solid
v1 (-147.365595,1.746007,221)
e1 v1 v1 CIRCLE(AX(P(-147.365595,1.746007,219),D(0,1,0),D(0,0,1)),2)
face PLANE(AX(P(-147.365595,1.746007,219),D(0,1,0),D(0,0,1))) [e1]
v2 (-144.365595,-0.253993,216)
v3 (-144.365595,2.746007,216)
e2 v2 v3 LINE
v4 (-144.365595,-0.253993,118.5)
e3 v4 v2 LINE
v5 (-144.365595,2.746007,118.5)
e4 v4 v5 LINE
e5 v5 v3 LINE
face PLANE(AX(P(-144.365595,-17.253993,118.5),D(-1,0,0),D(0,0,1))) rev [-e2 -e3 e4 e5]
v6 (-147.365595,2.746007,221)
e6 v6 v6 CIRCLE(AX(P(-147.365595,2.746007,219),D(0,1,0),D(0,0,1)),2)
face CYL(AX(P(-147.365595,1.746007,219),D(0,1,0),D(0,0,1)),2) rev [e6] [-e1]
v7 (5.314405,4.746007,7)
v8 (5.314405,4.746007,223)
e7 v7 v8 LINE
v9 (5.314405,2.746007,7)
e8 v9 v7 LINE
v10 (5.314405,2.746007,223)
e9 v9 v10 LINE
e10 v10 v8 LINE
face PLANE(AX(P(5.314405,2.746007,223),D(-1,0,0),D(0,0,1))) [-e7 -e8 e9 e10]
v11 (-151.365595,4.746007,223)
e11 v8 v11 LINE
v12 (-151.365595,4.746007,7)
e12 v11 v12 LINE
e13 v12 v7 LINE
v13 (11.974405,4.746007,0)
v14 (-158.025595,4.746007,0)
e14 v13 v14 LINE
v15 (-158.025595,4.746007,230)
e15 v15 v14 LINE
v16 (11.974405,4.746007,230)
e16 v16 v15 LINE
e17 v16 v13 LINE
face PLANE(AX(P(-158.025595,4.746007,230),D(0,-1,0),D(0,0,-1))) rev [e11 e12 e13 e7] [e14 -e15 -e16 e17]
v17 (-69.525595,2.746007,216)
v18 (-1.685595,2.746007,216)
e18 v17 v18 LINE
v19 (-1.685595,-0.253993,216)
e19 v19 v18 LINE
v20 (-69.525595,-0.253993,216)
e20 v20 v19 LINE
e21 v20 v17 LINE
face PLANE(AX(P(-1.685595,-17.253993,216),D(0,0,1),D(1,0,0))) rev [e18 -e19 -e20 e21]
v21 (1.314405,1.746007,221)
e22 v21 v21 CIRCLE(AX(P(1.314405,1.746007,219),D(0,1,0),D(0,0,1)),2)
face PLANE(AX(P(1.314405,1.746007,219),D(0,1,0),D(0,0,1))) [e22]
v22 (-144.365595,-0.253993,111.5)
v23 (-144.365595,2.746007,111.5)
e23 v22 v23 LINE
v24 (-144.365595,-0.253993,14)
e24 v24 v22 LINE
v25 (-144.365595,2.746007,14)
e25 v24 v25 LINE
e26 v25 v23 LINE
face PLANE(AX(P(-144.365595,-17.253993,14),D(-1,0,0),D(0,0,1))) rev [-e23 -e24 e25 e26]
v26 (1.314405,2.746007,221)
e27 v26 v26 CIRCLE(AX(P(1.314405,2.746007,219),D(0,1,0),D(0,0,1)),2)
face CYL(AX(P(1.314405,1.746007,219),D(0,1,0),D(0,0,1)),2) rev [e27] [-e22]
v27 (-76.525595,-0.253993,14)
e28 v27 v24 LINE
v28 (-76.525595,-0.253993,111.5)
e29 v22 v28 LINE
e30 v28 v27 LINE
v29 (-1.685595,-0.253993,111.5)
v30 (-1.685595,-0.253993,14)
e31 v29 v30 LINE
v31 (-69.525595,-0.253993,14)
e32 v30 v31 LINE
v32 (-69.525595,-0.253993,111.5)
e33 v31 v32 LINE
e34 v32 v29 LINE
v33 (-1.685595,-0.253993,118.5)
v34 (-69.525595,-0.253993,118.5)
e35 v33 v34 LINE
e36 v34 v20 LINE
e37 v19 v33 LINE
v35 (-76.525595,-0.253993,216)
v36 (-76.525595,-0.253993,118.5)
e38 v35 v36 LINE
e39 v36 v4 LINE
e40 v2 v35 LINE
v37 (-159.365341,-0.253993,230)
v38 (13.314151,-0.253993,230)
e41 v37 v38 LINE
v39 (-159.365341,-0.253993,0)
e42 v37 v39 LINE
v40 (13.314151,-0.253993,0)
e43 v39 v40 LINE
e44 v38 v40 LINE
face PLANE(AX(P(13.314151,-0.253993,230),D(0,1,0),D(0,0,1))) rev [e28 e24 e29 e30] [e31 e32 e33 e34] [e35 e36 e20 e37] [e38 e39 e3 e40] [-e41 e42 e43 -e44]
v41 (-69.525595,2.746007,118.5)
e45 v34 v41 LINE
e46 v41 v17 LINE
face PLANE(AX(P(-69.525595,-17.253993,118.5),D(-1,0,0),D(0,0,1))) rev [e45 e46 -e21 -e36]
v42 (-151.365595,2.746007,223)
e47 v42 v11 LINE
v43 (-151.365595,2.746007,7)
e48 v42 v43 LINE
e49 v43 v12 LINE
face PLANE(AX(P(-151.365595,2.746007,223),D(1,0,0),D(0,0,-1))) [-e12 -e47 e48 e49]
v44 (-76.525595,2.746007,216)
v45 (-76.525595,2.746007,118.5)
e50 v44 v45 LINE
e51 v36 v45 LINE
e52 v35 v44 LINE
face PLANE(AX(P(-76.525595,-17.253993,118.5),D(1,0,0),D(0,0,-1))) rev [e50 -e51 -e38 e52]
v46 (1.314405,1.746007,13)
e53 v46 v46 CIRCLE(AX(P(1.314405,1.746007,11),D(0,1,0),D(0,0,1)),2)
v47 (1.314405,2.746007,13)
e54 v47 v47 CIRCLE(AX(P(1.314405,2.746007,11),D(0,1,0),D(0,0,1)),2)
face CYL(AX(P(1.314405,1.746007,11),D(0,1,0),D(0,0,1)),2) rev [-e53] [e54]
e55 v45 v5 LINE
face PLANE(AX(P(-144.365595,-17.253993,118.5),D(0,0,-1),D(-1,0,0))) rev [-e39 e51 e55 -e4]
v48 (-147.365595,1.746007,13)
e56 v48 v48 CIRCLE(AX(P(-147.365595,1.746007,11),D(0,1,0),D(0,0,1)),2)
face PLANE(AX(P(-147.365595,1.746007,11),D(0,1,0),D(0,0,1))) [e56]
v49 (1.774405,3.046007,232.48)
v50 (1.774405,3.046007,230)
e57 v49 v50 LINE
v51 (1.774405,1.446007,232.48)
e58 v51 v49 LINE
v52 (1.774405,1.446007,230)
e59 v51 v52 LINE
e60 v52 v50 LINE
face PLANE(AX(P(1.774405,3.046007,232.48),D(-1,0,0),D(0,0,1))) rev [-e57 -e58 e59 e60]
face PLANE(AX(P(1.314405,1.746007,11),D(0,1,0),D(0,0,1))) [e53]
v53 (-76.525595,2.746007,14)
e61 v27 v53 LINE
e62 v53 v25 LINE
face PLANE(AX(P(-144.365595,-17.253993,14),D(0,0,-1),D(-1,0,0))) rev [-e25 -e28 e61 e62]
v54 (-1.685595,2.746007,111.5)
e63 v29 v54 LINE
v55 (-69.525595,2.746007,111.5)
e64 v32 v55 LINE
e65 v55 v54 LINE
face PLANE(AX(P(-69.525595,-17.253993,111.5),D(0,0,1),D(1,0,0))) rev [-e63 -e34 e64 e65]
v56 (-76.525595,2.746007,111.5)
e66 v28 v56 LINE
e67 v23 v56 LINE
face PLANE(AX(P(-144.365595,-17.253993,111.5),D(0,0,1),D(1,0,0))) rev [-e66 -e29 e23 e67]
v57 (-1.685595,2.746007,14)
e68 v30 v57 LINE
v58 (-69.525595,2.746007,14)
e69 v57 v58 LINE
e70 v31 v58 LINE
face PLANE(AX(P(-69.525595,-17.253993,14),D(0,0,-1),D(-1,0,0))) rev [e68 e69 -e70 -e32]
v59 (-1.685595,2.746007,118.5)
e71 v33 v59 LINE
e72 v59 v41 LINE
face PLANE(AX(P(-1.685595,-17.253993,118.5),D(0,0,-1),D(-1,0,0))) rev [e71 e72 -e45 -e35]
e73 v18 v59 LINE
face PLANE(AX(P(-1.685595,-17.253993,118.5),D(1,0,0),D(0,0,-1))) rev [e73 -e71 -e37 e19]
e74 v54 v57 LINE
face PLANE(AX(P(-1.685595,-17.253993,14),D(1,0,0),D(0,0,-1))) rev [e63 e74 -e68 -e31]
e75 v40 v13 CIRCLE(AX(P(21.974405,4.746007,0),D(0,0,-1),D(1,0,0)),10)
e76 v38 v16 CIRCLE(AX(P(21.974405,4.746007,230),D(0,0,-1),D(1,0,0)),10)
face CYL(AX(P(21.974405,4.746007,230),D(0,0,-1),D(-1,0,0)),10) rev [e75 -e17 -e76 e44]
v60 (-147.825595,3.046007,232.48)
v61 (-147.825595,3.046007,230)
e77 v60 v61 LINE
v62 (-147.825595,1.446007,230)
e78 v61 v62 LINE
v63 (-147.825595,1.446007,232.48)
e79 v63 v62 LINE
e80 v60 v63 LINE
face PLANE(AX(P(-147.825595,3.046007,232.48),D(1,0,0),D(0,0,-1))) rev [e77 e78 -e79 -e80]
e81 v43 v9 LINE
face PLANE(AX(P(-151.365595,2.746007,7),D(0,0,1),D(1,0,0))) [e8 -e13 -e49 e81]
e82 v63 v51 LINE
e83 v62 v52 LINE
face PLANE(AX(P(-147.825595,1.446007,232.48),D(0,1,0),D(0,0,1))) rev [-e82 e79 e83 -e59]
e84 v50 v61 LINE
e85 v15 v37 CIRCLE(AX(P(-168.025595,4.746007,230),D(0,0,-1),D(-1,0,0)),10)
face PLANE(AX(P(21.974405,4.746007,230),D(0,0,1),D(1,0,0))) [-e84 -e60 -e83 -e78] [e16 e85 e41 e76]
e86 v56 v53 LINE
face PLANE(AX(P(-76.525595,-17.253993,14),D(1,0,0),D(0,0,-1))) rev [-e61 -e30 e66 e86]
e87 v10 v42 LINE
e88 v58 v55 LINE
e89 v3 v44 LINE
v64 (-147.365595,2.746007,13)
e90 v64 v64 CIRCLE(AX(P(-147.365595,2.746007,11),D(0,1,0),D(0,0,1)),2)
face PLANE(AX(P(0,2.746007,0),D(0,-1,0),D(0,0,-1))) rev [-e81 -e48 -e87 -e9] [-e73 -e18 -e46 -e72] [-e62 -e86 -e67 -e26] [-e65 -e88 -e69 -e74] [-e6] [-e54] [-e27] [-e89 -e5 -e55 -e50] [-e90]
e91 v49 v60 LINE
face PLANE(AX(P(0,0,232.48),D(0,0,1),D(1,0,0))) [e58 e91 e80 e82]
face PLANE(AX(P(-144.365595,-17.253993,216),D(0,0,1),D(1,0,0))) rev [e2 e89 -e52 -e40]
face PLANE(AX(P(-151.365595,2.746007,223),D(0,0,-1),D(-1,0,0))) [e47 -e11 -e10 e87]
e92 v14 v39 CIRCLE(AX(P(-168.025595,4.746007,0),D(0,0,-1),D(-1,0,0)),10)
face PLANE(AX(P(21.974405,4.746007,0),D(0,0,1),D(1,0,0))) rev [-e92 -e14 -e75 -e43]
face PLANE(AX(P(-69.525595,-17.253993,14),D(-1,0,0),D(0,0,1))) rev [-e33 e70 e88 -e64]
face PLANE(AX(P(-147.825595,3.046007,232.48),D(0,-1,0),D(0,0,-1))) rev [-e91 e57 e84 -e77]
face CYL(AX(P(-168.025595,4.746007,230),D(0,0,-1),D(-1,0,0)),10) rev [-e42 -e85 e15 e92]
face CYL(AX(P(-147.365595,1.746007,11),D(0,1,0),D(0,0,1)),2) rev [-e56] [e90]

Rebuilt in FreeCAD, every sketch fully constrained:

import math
import FreeCAD as App
import Part
import Sketcher
Q = App.Units.Quantity


def add_polygon(sketch, points):
    """Adds a closed chain of lines whose ends are joined by coincident constraints."""
    first, n = sketch.GeometryCount, len(points)
    for a, b in zip(points, points[1:] + points[:1]):
        sketch.addGeometry(Part.LineSegment(App.Vector(*a, 0), App.Vector(*b, 0)), False)
    for i in range(n):
        sketch.addConstraint(Sketcher.Constraint("Coincident", first + i, 2, first + (i + 1) % n, 1))

doc = App.newDocument("Part")
body = doc.addObject("PartDesign::Body", "Body")

sketch1 = doc.addObject("Sketcher::SketchObject", "Sketch")
body.addObject(sketch1)
sketch1.AttachmentSupport = (doc.XY_Plane, [""])
sketch1.MapMode = "FlatFace"
sketch1.addGeometry(Part.LineSegment(App.Vector(11.974405, 4.746007, 0), App.Vector(-158.025595, 4.746007, 0)), False)
sketch1.addGeometry(Part.ArcOfCircle(Part.Circle(App.Vector(-168.025595, 4.746007, 0), App.Vector(0, 0, 1), 10), math.radians(-30), math.radians(0)), False)
sketch1.addGeometry(Part.LineSegment(App.Vector(-159.365341, -0.253993, 0), App.Vector(13.314151, -0.253993, 0)), False)
sketch1.addGeometry(Part.ArcOfCircle(Part.Circle(App.Vector(21.974405, 4.746008, 0), App.Vector(0, 0, 1), 10), math.radians(-180), math.radians(-150)), False)
add_polygon(sketch1, [(-148.025595, 1.246007), (-148.025595, 3.246007), (1.974405, 3.246007), (1.974405, 1.246007)])
sketch1.addConstraint([
    Sketcher.Constraint("Coincident", 0, 2, 1, 2),
    Sketcher.Constraint("Coincident", 1, 1, 2, 1),
    Sketcher.Constraint("Coincident", 2, 2, 3, 2),
    Sketcher.Constraint("Coincident", 3, 1, 0, 1),
    Sketcher.Constraint("Horizontal", 0),
    Sketcher.Constraint("Horizontal", 2),
    Sketcher.Constraint("Vertical", 4),
    Sketcher.Constraint("Horizontal", 5),
    Sketcher.Constraint("Vertical", 6),
    Sketcher.Constraint("Horizontal", 7),
    Sketcher.Constraint("Equal", 1, 3),
    Sketcher.Constraint("Horizontal", 1, 3, 3, 3),
    Sketcher.Constraint("Horizontal", 3, 3, 0, 2),
    Sketcher.Constraint("Radius", 1, Q("10 mm")),
    Sketcher.Constraint("DistanceX", 0, 2, 0, 1, Q("170 mm")),
    Sketcher.Constraint("DistanceX", 5, 1, 5, 2, Q("150 mm")),
    Sketcher.Constraint("DistanceY", 4, 1, 4, 2, Q("2 mm")),
    Sketcher.Constraint("DistanceY", 1, 1, 0, 2, Q("5 mm")),
    Sketcher.Constraint("DistanceX", 0, 2, 4, 2, Q("10 mm")),
    Sketcher.Constraint("DistanceY", 4, 2, 0, 2, Q("1.5 mm")),
    Sketcher.Constraint("DistanceX", 1, 1, -1, 1, Q("159.365341 mm")),
    Sketcher.Constraint("DistanceY", -1, 1, 1, 3, Q("4.746007 mm")),
])
pad1 = doc.addObject("PartDesign::Pad", "Pad")
body.addObject(pad1)
pad1.Profile = sketch1
pad1.Length = 230
body2 = doc.addObject("PartDesign::Body", "Body001")

sketch2 = doc.addObject("Sketcher::SketchObject", "Sketch001")
body2.addObject(sketch2)
sketch2.AttachmentSupport = (doc.getObject("XY_Plane001"), [""])
sketch2.MapMode = "FlatFace"
sketch2.AttachmentOffset = App.Placement(App.Vector(0, 0, 230), App.Rotation())
add_polygon(sketch2, [(-147.825595, 3.046007), (-147.825595, 1.446007), (1.774405, 1.446007), (1.774405, 3.046007)])
sketch2.addConstraint([
    Sketcher.Constraint("Vertical", 0),
    Sketcher.Constraint("Horizontal", 1),
    Sketcher.Constraint("Vertical", 2),
    Sketcher.Constraint("Horizontal", 3),
    Sketcher.Constraint("DistanceX", 1, 1, 1, 2, Q("149.6 mm")),
    Sketcher.Constraint("DistanceY", 0, 2, 0, 1, Q("1.6 mm")),
    Sketcher.Constraint("DistanceX", 0, 2, -1, 1, Q("147.825595 mm")),
    Sketcher.Constraint("DistanceY", -1, 1, 0, 2, Q("1.446007 mm")),
])
pad2 = doc.addObject("PartDesign::Pad", "Pad001")
body2.addObject(pad2)
pad2.Profile = sketch2
pad2.Length = 2.48
body.AllowCompound = True
doc.recompute()

boolean = doc.addObject("PartDesign::Boolean", "Boolean")
body.addObject(boolean)
boolean.Type = "Fuse"
boolean.addObjects([body2])

sketch3 = doc.addObject("Sketcher::SketchObject", "Sketch002")
body.addObject(sketch3)
sketch3.AttachmentSupport = (doc.XY_Plane, [""])
sketch3.MapMode = "FlatFace"
add_polygon(sketch3, [(1.974405, 3.246007), (1.974405, 1.246007), (-148.025595, 1.246007), (-148.025595, 3.246007)])
sketch3.addConstraint([
    Sketcher.Constraint("Vertical", 0),
    Sketcher.Constraint("Horizontal", 1),
    Sketcher.Constraint("Vertical", 2),
    Sketcher.Constraint("Horizontal", 3),
    Sketcher.Constraint("DistanceX", 1, 2, 1, 1, Q("150 mm")),
    Sketcher.Constraint("DistanceY", 0, 2, 0, 1, Q("2 mm")),
    Sketcher.Constraint("DistanceX", -1, 1, 0, 2, Q("1.974405 mm")),
    Sketcher.Constraint("DistanceY", -1, 1, 0, 2, Q("1.246007 mm")),
])
pad3 = doc.addObject("PartDesign::Pad", "Pad002")
body.addObject(pad3)
pad3.Profile = sketch3
pad3.Length = 230

sketch4 = doc.addObject("Sketcher::SketchObject", "Sketch003")
body.addObject(sketch4)
sketch4.AttachmentSupport = (doc.XZ_Plane, [""])
sketch4.MapMode = "FlatFace"
sketch4.AttachmentOffset = App.Placement(App.Vector(0, 0, -4.746007), App.Rotation())
add_polygon(sketch4, [(-151.365595, 223), (-151.365595, 7), (5.314405, 7), (5.314405, 223)])
sketch4.addConstraint([
    Sketcher.Constraint("Vertical", 0),
    Sketcher.Constraint("Horizontal", 1),
    Sketcher.Constraint("Vertical", 2),
    Sketcher.Constraint("Horizontal", 3),
    Sketcher.Constraint("DistanceY", 0, 2, 0, 1, Q("216 mm")),
    Sketcher.Constraint("DistanceY", -1, 1, 0, 2, Q("7 mm")),
    Sketcher.Constraint("DistanceX", 1, 1, 1, 2, Q("156.68 mm")),
    Sketcher.Constraint("DistanceX", 0, 2, -1, 1, Q("151.365595 mm")),
])
pocket1 = doc.addObject("PartDesign::Pocket", "Pocket")
body.addObject(pocket1)
pocket1.Profile = sketch4
pocket1.Length = 2
pocket1.Reversed = True

sketch5 = doc.addObject("Sketcher::SketchObject", "Sketch004")
body.addObject(sketch5)
sketch5.AttachmentSupport = (doc.XZ_Plane, [""])
sketch5.MapMode = "FlatFace"
sketch5.AttachmentOffset = App.Placement(App.Vector(0, 0, -2.746007), App.Rotation())
add_polygon(sketch5, [(-144.365595, 14), (-144.365595, 111.5), (-76.525595, 111.5), (-76.525595, 14)])
add_polygon(sketch5, [(-69.525595, 14), (-69.525595, 111.5), (-1.685595, 111.5), (-1.685595, 14)])
add_polygon(sketch5, [(-144.365595, 118.5), (-144.365595, 216), (-76.525595, 216), (-76.525595, 118.5)])
add_polygon(sketch5, [(-69.525595, 118.5), (-69.525595, 216), (-1.685595, 216), (-1.685595, 118.5)])
sketch5.addConstraint([
    Sketcher.Constraint("Vertical", 0),
    Sketcher.Constraint("Horizontal", 1),
    Sketcher.Constraint("Vertical", 2),
    Sketcher.Constraint("Horizontal", 3),
    Sketcher.Constraint("Vertical", 4),
    Sketcher.Constraint("Horizontal", 5),
    Sketcher.Constraint("Vertical", 6),
    Sketcher.Constraint("Horizontal", 7),
    Sketcher.Constraint("Vertical", 8),
    Sketcher.Constraint("Horizontal", 9),
    Sketcher.Constraint("Vertical", 10),
    Sketcher.Constraint("Horizontal", 11),
    Sketcher.Constraint("Vertical", 12),
    Sketcher.Constraint("Horizontal", 13),
    Sketcher.Constraint("Vertical", 14),
    Sketcher.Constraint("Horizontal", 15),
    Sketcher.Constraint("Horizontal", 1, 2, 4, 2),
    Sketcher.Constraint("Horizontal", 3, 2, 6, 2),
    Sketcher.Constraint("Horizontal", 9, 2, 12, 2),
    Sketcher.Constraint("Horizontal", 11, 2, 14, 2),
    Sketcher.Constraint("Vertical", 3, 2, 8, 2),
    Sketcher.Constraint("Vertical", 2, 2, 9, 2),
    Sketcher.Constraint("Vertical", 7, 2, 12, 2),
    Sketcher.Constraint("Vertical", 6, 2, 13, 2),
    Sketcher.Constraint("Equal", 3, 5),
    Sketcher.Constraint("Equal", 6, 8),
    Sketcher.Constraint("DistanceY", 0, 1, 0, 2, Q("97.5 mm")),
    Sketcher.Constraint("DistanceY", -1, 1, 2, 2, Q("14 mm")),
    Sketcher.Constraint("DistanceY", -1, 1, 8, 2, Q("216 mm")),
    Sketcher.Constraint("DistanceX", 1, 2, 4, 2, Q("7 mm")),
    Sketcher.Constraint("DistanceX", 1, 1, 1, 2, Q("67.84 mm")),
    Sketcher.Constraint("DistanceX", 0, 2, -1, 1, Q("144.365595 mm")),
])
pocket2 = doc.addObject("PartDesign::Pocket", "Pocket001")
body.addObject(pocket2)
pocket2.Profile = sketch5
pocket2.Length = 20
pocket2.Reversed = True

sketch6 = doc.addObject("Sketcher::SketchObject", "Sketch005")
body.addObject(sketch6)
sketch6.AttachmentSupport = (doc.XZ_Plane, [""])
sketch6.MapMode = "FlatFace"
sketch6.AttachmentOffset = App.Placement(App.Vector(0, 0, -2.746007), App.Rotation())
sketch6.addGeometry([
    Part.Circle(App.Vector(-147.365595, 11, 0), App.Vector(0, 0, 1), 2),
    Part.Circle(App.Vector(1.314405, 11, 0), App.Vector(0, 0, 1), 2),
    Part.Circle(App.Vector(-147.365595, 219, 0), App.Vector(0, 0, 1), 2),
    Part.Circle(App.Vector(1.314405, 219, 0), App.Vector(0, 0, 1), 2),
], False)
sketch6.addConstraint([
    Sketcher.Constraint("Equal", 0, 1),
    Sketcher.Constraint("Equal", 1, 2),
    Sketcher.Constraint("Equal", 2, 3),
    Sketcher.Constraint("Horizontal", 0, 3, 1, 3),
    Sketcher.Constraint("Horizontal", 2, 3, 3, 3),
    Sketcher.Constraint("Vertical", 0, 3, 2, 3),
    Sketcher.Constraint("Vertical", 1, 3, 3, 3),
    Sketcher.Constraint("Diameter", 0, Q("4 mm")),
    Sketcher.Constraint("DistanceY", -1, 1, 0, 3, Q("11 mm")),
    Sketcher.Constraint("DistanceY", -1, 1, 2, 3, Q("219 mm")),
    Sketcher.Constraint("DistanceX", 0, 3, 1, 3, Q("148.68 mm")),
    Sketcher.Constraint("DistanceX", 0, 3, -1, 1, Q("147.365595 mm")),
])
pocket3 = doc.addObject("PartDesign::Pocket", "Pocket002")
body.addObject(pocket3)
pocket3.Profile = sketch6
pocket3.Length = 1
pocket3.Reversed = True

doc.recompute()
